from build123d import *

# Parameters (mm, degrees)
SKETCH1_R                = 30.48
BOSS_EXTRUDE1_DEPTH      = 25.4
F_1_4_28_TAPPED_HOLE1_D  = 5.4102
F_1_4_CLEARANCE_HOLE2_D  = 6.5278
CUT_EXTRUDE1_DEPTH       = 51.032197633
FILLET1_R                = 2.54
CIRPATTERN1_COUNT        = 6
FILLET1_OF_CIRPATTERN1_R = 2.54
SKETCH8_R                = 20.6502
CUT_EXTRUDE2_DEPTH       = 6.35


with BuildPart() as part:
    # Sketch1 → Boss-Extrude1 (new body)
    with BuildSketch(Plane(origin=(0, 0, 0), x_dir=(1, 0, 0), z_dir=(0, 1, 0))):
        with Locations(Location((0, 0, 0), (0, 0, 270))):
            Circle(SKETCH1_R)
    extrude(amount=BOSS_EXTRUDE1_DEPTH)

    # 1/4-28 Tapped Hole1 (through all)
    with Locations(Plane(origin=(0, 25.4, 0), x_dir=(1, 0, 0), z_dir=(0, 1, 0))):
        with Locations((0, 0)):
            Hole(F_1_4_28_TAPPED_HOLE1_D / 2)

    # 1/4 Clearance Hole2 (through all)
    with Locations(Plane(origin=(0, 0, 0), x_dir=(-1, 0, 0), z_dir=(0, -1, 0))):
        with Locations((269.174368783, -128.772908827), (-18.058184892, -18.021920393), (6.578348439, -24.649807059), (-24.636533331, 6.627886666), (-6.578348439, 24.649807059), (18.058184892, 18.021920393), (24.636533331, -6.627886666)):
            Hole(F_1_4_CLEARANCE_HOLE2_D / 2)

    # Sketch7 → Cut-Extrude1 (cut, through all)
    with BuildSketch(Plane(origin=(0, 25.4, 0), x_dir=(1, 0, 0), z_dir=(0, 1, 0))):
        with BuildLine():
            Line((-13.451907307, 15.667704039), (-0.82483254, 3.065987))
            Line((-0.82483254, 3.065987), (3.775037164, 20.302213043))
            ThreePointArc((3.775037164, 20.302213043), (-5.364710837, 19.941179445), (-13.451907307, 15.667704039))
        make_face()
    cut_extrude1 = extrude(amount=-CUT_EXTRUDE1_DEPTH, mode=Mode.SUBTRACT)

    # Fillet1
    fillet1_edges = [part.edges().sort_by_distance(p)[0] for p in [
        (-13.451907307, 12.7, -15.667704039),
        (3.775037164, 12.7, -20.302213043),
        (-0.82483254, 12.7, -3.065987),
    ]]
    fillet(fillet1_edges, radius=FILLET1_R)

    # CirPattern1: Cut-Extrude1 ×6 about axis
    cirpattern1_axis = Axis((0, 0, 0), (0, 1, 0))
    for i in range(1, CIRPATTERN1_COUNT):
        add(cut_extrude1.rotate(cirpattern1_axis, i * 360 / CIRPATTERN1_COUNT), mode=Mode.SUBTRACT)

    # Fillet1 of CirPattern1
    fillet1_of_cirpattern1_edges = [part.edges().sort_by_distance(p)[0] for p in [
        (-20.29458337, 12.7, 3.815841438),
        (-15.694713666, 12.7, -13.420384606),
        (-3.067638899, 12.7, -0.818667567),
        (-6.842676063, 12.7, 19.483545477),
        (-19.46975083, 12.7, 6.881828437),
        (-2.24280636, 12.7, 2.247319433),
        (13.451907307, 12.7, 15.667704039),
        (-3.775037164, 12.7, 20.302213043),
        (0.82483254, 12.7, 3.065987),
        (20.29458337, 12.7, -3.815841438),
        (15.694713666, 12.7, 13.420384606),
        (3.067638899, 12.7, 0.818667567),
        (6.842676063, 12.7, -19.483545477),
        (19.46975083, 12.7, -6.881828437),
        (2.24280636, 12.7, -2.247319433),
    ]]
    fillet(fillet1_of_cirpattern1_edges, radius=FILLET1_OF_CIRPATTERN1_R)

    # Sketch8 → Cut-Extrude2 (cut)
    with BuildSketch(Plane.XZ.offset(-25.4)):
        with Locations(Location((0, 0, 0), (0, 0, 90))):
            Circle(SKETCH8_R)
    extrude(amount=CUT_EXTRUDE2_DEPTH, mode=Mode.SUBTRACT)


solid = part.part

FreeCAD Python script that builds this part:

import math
import FreeCAD as App
import Part
import Sketcher
Q = App.Units.Quantity


def edges_at(feature, points):
    """Names of the edges that pass closest to the given points."""
    edges = feature.Shape.Edges
    near = lambda p: min(range(len(edges)), key=lambda i: edges[i].distToShape(Part.Vertex(*p))[0])
    return sorted({f"Edge{near(p) + 1}" for p in points})

doc = App.newDocument("Part")
body = doc.addObject("PartDesign::Body", "Body")

# Sketch on XZ plane
sketch1 = doc.addObject("Sketcher::SketchObject", "Sketch")
body.addObject(sketch1)
sketch1.AttachmentSupport = (doc.XZ_Plane, [""])
sketch1.MapMode = "FlatFace"
sketch1.addGeometry(Part.Circle(App.Vector(0, 0, 0), App.Vector(0, 0, 1), 30.48), False)
sketch1.addConstraint([
    Sketcher.Constraint("Coincident", 0, 3, -1, 1),
    Sketcher.Constraint("Diameter", 0, Q("2.4 in")),
])
pad1 = doc.addObject("PartDesign::Pad", "Pad")
body.addObject(pad1)
pad1.Profile = sketch1
pad1.Length = Q("1 in")
pad1.Reversed = True

# Sketch on XZ plane
sketch2 = doc.addObject("Sketcher::SketchObject", "Sketch001")
body.addObject(sketch2)
sketch2.AttachmentSupport = (doc.XZ_Plane, [""])
sketch2.MapMode = "FlatFace"
sketch2.AttachmentOffset = App.Placement(App.Vector(0, 0, -1 * 25.4), App.Rotation())
sketch2.addGeometry(Part.Circle(App.Vector(0, 0, 0), App.Vector(0, 0, 1), 2.7051), False)
sketch2.addConstraint([
    Sketcher.Constraint("Coincident", 0, 3, -1, 1),
    Sketcher.Constraint("Diameter", 0, Q("0.213 in")),
])
doc.recompute()
hole = doc.addObject("PartDesign::Hole", "Hole")
body.addObject(hole)
hole.Profile = sketch2
hole.ThreadType = "None"
hole.Diameter = Q("0.213 in")
hole.DepthType = "ThroughAll"
hole.Reversed = True

# Sketch on XZ plane
sketch3 = doc.addObject("Sketcher::SketchObject", "Sketch002")
body.addObject(sketch3)
sketch3.AttachmentSupport = (doc.XZ_Plane, [""])
sketch3.MapMode = "FlatFace"
sketch3.addGeometry([
    Part.Circle(App.Vector(-269.174369, 128.772909, 0), App.Vector(0, 0, 1), 3.2639),  # 0
    Part.Circle(App.Vector(18.058185, 18.02192, 0), App.Vector(0, 0, 1), 3.2639),  # 1
    Part.Circle(App.Vector(-6.578348, 24.649807, 0), App.Vector(0, 0, 1), 3.2639),  # 2
    Part.Circle(App.Vector(24.636533, -6.627887, 0), App.Vector(0, 0, 1), 3.2639),  # 3
    Part.Circle(App.Vector(6.578348, -24.649807, 0), App.Vector(0, 0, 1), 3.2639),  # 4
    Part.Circle(App.Vector(-18.058185, -18.02192, 0), App.Vector(0, 0, 1), 3.2639),  # 5
    Part.Circle(App.Vector(-24.636533, 6.627887, 0), App.Vector(0, 0, 1), 3.2639),  # 6
], False)
sketch3.addConstraint([
    Sketcher.Constraint("Equal", 0, 1),
    Sketcher.Constraint("Equal", 1, 2),
    Sketcher.Constraint("Equal", 2, 3),
    Sketcher.Constraint("Equal", 3, 4),
    Sketcher.Constraint("Equal", 4, 5),
    Sketcher.Constraint("Equal", 5, 6),
    Sketcher.Constraint("Symmetric", 2, 3, 4, 3, -1, 1),
    Sketcher.Constraint("Symmetric", 1, 3, 5, 3, -1, 1),
    Sketcher.Constraint("Symmetric", 3, 3, 6, 3, -1, 1),
    Sketcher.Constraint("Diameter", 0, Q("0.257 in")),
    Sketcher.Constraint("DistanceY", 2, 3, 0, 3, Q("104.123102 mm")),
    Sketcher.Constraint("DistanceX", 0, 3, -1, 1, Q("269.174369 mm")),
    Sketcher.Constraint("DistanceY", -1, 1, 0, 3, Q("128.772909 mm")),
    Sketcher.Constraint("DistanceY", -1, 1, 1, 3, Q("18.02192 mm")),
    Sketcher.Constraint("DistanceX", 2, 3, -1, 1, Q("6.578348 mm")),
    Sketcher.Constraint("DistanceX", 1, 3, 3, 3, Q("6.578348 mm")),
    Sketcher.Constraint("DistanceX", 2, 3, 3, 3, Q("31.214882 mm")),
    Sketcher.Constraint("DistanceY", 4, 3, 3, 3, Q("18.02192 mm")),
])
doc.recompute()
hole2 = doc.addObject("PartDesign::Hole", "Hole001")
body.addObject(hole2)
hole2.Profile = sketch3
hole2.ThreadType = "None"
hole2.Diameter = Q("0.257 in")
hole2.DepthType = "ThroughAll"

# Sketch on XZ plane
sketch4 = doc.addObject("Sketcher::SketchObject", "Sketch003")
body.addObject(sketch4)
sketch4.AttachmentSupport = (doc.XZ_Plane, [""])
sketch4.MapMode = "FlatFace"
sketch4.AttachmentOffset = App.Placement(App.Vector(0, 0, -1 * 25.4), App.Rotation())
sketch4.addGeometry([
    Part.LineSegment(App.Vector(-13.451907, -15.667704, 0), App.Vector(-0.824833, -3.065987, 0)),
    Part.LineSegment(App.Vector(-0.824833, -3.065987, 0), App.Vector(3.775037, -20.302213, 0)),
    Part.ArcOfCircle(Part.Circle(App.Vector(0, 0, 0), App.Vector(0, 0, 1), 20.6502), math.radians(-130.648581), math.radians(-79.466596)),
], False)
sketch4.addConstraint([
    Sketcher.Constraint("Coincident", 0, 2, 1, 1),
    Sketcher.Constraint("Coincident", 1, 2, 2, 2),
    Sketcher.Constraint("Coincident", 2, 1, 0, 1),
    Sketcher.Constraint("Coincident", 2, 3, -1, 1),
    Sketcher.Constraint("Equal", 0, 1),
    Sketcher.Constraint("Radius", 2, Q("0.813 in")),
    Sketcher.Constraint("Distance", 0, Q("17.839459 mm")),
    Sketcher.Constraint("DistanceX", 0, 2, 1, 2, Q("4.59987 mm")),
    Sketcher.Constraint("DistanceY", 1, 2, 2, 1, Q("4.634509 mm")),
])
pocket1 = doc.addObject("PartDesign::Pocket", "Pocket")
body.addObject(pocket1)
pocket1.Profile = sketch4
pocket1.Type = "ThroughAll"
pocket1.Reversed = True
doc.recompute()

fillet = doc.addObject("PartDesign::Fillet", "Fillet")
body.addObject(fillet)
fillet.Base = (pocket1, edges_at(pocket1, [(-13.452, 12.7, -15.668), (3.775, 12.7, -20.302), (-0.825, 12.7, -3.066)]))
fillet.Radius = Q("0.1 in")
doc.recompute()

polarpattern = doc.addObject("PartDesign::PolarPattern", "PolarPattern")
body.addObject(polarpattern)
polarpattern.Originals = [pocket1]
polarpattern.Axis = (doc.Y_Axis, [""])
polarpattern.Angle = 360
polarpattern.Occurrences = 6
body.Tip = polarpattern
doc.recompute()

fillet2 = doc.addObject("PartDesign::Fillet", "Fillet001")
body.addObject(fillet2)
fillet2.Base = (polarpattern, edges_at(polarpattern, [
    (-20.295, 12.7, 3.816),
    (-15.695, 12.7, -13.42),
    (-3.068, 12.7, -0.819),
    (-6.843, 12.7, 19.484),
    (-19.47, 12.7, 6.882),
    (-2.243, 12.7, 2.247),
    (13.452, 12.7, 15.668),
    (-3.775, 12.7, 20.302),
    (0.825, 12.7, 3.066),
    (20.295, 12.7, -3.816),
    (15.695, 12.7, 13.42),
    (3.068, 12.7, 0.819),
    (6.843, 12.7, -19.484),
    (19.47, 12.7, -6.882),
    (2.243, 12.7, -2.247),
]))
fillet2.Radius = Q("0.1 in")

# Sketch on XZ plane
sketch5 = doc.addObject("Sketcher::SketchObject", "Sketch004")
body.addObject(sketch5)
sketch5.AttachmentSupport = (doc.XZ_Plane, [""])
sketch5.MapMode = "FlatFace"
sketch5.AttachmentOffset = App.Placement(App.Vector(0, 0, -1 * 25.4), App.Rotation())
sketch5.addGeometry(Part.Circle(App.Vector(0, 0, 0), App.Vector(0, 0, 1), 20.6502), False)
sketch5.addConstraint([
    Sketcher.Constraint("Coincident", 0, 3, -1, 1),
    Sketcher.Constraint("Diameter", 0, Q("1.626 in")),
])
pocket2 = doc.addObject("PartDesign::Pocket", "Pocket001")
body.addObject(pocket2)
pocket2.Profile = sketch5
pocket2.Length = Q("0.25 in")
pocket2.Reversed = True

doc.recompute()
